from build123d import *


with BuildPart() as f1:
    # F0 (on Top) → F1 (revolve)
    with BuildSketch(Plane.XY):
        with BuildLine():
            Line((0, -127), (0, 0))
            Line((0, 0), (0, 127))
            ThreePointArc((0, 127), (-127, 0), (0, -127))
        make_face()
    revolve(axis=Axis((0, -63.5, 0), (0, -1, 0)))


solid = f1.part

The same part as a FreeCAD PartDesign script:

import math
import FreeCAD as App
import Part
import Sketcher

V = App.Vector
Q = App.Units.Quantity

doc = App.newDocument("Part")
params = doc.addObject("Spreadsheet::Sheet", "Params")
for row, (alias, value) in enumerate([
    ("sketch1_radius", "5 in"),
    ("revolution_angle", "360 deg"),
], start=1):
    params.set(f"A{row}", alias)
    params.set(f"B{row}", "=" + value)
    params.setAlias(f"B{row}", alias)

body = doc.addObject("PartDesign::Body", "Body")

# Sketch on XY plane
sketch1 = body.newObject("Sketcher::SketchObject", "Sketch")
sketch1.AttachmentSupport = (doc.getObject("XY_Plane"), [""])
sketch1.MapMode = "FlatFace"
sketch1.addGeometry(Part.LineSegment(V(0, -127, 0), V(0, 127, 0)), False)
sketch1.addGeometry(Part.ArcOfCircle(Part.Circle(V(0, 0, 0), V(0, 0, 1), 127), math.radians(90), math.radians(270)), False)
sketch1.addConstraint(Sketcher.Constraint("Coincident", 0, 1, 1, 2))
sketch1.addConstraint(Sketcher.Constraint("Coincident", 1, 1, 0, 2))
sketch1.addConstraint(Sketcher.Constraint("Vertical", 0))
sketch1.addConstraint(Sketcher.Constraint("Coincident", 1, 3, -1, 1))
sketch1.addConstraint(Sketcher.Constraint("PointOnObject", 0, 1, -2))
sketch1.addConstraint(Sketcher.Constraint("Radius", 1, Q("5 in")))
sketch1.setExpression("Constraints[5]", "Params.sketch1_radius")
revolution = body.newObject("PartDesign::Revolution", "Revolution")
revolution.Profile = sketch1
revolution.ReferenceAxis = (sketch1, ["V_Axis"])
revolution.setExpression("Angle", "Params.revolution_angle")

doc.recompute()
